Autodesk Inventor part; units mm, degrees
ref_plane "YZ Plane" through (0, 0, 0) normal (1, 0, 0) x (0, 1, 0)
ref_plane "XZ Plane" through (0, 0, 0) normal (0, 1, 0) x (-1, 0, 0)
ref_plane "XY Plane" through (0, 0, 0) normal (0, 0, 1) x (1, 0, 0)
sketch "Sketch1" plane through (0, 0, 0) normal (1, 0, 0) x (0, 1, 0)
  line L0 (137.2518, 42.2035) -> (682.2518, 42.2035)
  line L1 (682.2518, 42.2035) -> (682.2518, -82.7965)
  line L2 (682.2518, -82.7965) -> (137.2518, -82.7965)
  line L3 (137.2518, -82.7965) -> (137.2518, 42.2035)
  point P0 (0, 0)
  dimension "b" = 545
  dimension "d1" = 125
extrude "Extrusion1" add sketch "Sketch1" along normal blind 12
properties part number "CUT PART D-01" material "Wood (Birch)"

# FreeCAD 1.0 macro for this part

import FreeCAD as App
import Part
import Sketcher

V = App.Vector
Q = App.Units.Quantity

doc = App.newDocument("Part")
body = doc.addObject("PartDesign::Body", "Body")

# Sketch on YZ plane
sketch1 = doc.addObject("Sketcher::SketchObject", "Sketch")
body.addObject(sketch1)
sketch1.AttachmentSupport = (doc.YZ_Plane, [""])
sketch1.MapMode = "FlatFace"
sketch1.addGeometry(Part.LineSegment(V(682, 42, 0), V(137, 42, 0)), False)
sketch1.addGeometry(Part.LineSegment(V(137, 42, 0), V(137, -83, 0)), False)
sketch1.addGeometry(Part.LineSegment(V(137, -83, 0), V(682, -83, 0)), False)
sketch1.addGeometry(Part.LineSegment(V(682, -83, 0), V(682, 42, 0)), False)
sketch1.addConstraint(Sketcher.Constraint("Coincident", 0, 2, 1, 1))
sketch1.addConstraint(Sketcher.Constraint("Coincident", 1, 2, 2, 1))
sketch1.addConstraint(Sketcher.Constraint("Coincident", 2, 2, 3, 1))
sketch1.addConstraint(Sketcher.Constraint("Coincident", 3, 2, 0, 1))
sketch1.addConstraint(Sketcher.Constraint("Horizontal", 0))
sketch1.addConstraint(Sketcher.Constraint("Vertical", 1))
sketch1.addConstraint(Sketcher.Constraint("Horizontal", 2))
sketch1.addConstraint(Sketcher.Constraint("Vertical", 3))
sketch1.addConstraint(Sketcher.Constraint("DistanceX", 0, 2, 0, 1, Q("545 mm")))
sketch1.addConstraint(Sketcher.Constraint("DistanceY", 1, 2, 1, 1, Q("125 mm")))
sketch1.addConstraint(Sketcher.Constraint("DistanceX", -1, 1, 0, 2, Q("137.2518 mm")))
sketch1.addConstraint(Sketcher.Constraint("DistanceY", -1, 1, 0, 2, Q("42.2035 mm")))
pad1 = doc.addObject("PartDesign::Pad", "Pad")
body.addObject(pad1)
pad1.Profile = sketch1
pad1.Length = 12

doc.recompute()
